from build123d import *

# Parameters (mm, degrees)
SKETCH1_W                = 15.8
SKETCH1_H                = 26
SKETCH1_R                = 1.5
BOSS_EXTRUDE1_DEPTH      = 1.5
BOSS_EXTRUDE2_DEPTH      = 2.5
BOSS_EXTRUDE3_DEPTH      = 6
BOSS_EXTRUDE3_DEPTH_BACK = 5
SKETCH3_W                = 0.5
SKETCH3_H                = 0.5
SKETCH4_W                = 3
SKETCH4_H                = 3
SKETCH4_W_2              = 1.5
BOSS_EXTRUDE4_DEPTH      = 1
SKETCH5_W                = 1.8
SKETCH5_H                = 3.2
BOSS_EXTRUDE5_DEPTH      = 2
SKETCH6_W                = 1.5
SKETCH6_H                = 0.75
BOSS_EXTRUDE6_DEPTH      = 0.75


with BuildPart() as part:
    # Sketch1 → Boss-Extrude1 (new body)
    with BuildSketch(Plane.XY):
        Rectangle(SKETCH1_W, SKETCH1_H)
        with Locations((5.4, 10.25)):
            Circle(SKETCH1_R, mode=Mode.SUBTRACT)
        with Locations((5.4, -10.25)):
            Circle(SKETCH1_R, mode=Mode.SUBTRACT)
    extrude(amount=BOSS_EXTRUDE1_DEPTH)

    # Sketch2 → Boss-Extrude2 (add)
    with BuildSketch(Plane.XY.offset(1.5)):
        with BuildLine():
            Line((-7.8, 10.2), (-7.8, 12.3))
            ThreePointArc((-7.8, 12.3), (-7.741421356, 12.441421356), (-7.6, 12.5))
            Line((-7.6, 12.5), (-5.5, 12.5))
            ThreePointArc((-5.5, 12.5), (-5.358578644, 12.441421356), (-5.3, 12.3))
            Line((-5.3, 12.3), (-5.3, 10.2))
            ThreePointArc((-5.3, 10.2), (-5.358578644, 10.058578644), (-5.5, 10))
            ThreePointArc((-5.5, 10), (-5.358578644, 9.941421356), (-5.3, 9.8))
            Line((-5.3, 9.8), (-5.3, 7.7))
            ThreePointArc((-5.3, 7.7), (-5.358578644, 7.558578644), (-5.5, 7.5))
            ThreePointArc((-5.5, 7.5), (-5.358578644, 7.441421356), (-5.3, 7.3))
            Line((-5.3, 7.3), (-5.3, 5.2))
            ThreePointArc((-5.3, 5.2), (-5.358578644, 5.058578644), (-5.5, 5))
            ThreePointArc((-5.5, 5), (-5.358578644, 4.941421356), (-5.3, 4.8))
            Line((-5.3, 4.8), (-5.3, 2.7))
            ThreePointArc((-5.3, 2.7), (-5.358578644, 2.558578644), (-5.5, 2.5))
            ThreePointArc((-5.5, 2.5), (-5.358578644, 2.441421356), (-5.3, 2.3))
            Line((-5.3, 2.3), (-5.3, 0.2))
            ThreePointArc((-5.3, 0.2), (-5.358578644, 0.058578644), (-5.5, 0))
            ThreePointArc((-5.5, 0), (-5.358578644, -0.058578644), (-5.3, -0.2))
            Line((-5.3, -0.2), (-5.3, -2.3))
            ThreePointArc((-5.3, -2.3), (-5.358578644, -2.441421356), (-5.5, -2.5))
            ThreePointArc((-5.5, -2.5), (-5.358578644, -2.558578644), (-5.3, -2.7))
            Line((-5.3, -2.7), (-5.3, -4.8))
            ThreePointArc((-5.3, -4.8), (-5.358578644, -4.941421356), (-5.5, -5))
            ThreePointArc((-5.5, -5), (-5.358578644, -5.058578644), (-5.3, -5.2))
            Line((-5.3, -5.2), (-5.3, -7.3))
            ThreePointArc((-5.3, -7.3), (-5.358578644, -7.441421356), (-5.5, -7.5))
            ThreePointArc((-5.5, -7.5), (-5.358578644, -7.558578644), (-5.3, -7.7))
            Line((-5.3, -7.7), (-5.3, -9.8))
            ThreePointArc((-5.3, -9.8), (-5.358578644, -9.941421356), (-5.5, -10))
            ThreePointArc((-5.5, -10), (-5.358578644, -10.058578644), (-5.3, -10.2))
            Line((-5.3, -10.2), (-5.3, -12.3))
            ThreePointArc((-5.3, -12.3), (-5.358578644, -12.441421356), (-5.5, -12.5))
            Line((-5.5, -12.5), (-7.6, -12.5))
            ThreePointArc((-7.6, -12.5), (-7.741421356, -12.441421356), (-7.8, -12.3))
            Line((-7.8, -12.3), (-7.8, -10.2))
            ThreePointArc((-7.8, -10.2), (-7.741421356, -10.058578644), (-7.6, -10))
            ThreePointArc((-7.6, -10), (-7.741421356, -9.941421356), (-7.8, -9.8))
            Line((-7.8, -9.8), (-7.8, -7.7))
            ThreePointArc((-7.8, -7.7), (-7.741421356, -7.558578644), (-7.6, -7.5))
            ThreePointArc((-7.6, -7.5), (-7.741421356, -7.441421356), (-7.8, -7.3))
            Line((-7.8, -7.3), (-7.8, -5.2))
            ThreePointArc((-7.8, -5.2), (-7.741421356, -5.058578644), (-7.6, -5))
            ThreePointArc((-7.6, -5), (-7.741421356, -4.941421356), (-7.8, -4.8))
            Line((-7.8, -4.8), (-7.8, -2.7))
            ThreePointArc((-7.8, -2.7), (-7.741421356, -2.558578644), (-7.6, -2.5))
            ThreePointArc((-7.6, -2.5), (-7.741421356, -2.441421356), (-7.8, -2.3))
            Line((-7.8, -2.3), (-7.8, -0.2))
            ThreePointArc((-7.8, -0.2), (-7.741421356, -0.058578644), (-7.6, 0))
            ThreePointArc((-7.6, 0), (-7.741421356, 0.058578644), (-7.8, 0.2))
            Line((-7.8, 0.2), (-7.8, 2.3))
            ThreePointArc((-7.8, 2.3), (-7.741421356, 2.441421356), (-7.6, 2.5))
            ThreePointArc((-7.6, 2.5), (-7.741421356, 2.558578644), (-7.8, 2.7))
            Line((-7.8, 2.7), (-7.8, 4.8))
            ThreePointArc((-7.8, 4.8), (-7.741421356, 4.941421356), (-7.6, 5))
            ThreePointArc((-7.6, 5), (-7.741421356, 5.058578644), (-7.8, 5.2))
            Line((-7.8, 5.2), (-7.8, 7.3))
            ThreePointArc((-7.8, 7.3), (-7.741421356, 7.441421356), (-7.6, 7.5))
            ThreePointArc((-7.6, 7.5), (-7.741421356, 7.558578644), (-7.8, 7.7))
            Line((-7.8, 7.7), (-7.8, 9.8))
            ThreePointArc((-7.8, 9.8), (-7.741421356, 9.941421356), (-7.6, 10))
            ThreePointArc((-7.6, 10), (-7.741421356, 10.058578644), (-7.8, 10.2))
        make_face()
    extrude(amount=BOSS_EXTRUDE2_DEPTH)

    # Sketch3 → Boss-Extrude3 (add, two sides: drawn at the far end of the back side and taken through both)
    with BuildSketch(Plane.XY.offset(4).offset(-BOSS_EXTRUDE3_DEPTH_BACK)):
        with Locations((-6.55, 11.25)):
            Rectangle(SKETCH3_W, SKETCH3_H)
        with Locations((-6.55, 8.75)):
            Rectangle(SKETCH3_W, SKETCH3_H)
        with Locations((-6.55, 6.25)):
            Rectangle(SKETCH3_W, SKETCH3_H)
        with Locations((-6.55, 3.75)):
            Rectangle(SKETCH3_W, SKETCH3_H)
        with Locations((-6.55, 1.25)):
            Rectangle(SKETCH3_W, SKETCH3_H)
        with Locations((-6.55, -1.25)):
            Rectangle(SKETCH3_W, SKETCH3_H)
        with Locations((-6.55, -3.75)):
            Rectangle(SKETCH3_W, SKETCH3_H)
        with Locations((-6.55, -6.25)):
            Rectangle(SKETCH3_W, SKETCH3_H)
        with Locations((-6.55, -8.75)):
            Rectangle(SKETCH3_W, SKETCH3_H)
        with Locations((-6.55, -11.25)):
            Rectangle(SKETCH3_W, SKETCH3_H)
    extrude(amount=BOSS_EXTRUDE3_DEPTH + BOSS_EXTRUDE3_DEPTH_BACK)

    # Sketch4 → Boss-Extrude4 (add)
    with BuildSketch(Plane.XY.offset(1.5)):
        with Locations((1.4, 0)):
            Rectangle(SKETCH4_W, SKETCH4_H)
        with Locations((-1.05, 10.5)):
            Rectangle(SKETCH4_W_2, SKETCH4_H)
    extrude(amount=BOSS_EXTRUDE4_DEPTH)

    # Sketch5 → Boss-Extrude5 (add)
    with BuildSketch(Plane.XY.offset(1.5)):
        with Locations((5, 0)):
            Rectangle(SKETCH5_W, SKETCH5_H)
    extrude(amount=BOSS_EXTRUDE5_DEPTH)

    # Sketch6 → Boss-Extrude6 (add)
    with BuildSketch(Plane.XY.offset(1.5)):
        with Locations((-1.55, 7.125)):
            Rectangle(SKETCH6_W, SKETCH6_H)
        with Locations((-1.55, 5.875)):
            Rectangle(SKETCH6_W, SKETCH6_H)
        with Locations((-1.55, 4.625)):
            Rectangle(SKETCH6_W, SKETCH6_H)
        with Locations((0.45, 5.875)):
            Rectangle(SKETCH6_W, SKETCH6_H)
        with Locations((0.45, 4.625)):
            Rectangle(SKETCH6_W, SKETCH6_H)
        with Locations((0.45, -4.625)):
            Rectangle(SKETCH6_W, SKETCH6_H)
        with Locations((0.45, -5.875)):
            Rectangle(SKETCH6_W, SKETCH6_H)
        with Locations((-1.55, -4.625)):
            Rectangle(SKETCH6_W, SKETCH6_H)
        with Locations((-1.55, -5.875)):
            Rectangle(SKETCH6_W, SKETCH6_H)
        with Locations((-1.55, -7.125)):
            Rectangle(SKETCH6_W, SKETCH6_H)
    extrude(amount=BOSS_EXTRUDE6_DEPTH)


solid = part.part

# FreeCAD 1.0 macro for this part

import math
import FreeCAD as App
import Part
import Sketcher

V = App.Vector


def add_polygon(sketch, points):
    """Adds a closed chain of lines whose ends are joined by coincident constraints."""
    first, n = sketch.GeometryCount, len(points)
    for a, b in zip(points, points[1:] + points[:1]):
        sketch.addGeometry(Part.LineSegment(App.Vector(*a, 0), App.Vector(*b, 0)), False)
    for i in range(n):
        sketch.addConstraint(Sketcher.Constraint("Coincident", first + i, 2, first + (i + 1) % n, 1))

doc = App.newDocument("Part")
body = doc.addObject("PartDesign::Body", "Body")

sketch1 = body.newObject("Sketcher::SketchObject", "Sketch")
sketch1.AttachmentSupport = (doc.getObject("XY_Plane"), [""])
sketch1.MapMode = "FlatFace"
add_polygon(sketch1, [(-7.9, 13), (-7.9, -13), (7.9, -13), (7.9, 13)])
sketch1.addGeometry(Part.Circle(V(5.4, -10.2, 0), V(0, 0, 1), 1.5), False)
sketch1.addGeometry(Part.Circle(V(5.4, 10.2, 0), V(0, 0, 1), 1.5), False)
sketch1.addConstraint(Sketcher.Constraint("Vertical", 0))
sketch1.addConstraint(Sketcher.Constraint("Horizontal", 1))
sketch1.addConstraint(Sketcher.Constraint("Vertical", 2))
sketch1.addConstraint(Sketcher.Constraint("Horizontal", 3))
sketch1.addConstraint(Sketcher.Constraint("Equal", 4, 5))
sketch1.addConstraint(Sketcher.Constraint("Symmetric", 0, 2, 2, 2, -1, 1))
sketch1.addConstraint(Sketcher.Constraint("Symmetric", 4, 3, 5, 3, -1))
sketch1.addConstraint(Sketcher.Constraint("Diameter", 4, 3.0))
sketch1.addConstraint(Sketcher.Constraint("DistanceY", 0, 2, 0, 1, 26.0))
sketch1.addConstraint(Sketcher.Constraint("DistanceX", 1, 1, 1, 2, 15.8))
sketch1.addConstraint(Sketcher.Constraint("DistanceX", -1, 1, 4, 3, 5.4))
sketch1.addConstraint(Sketcher.Constraint("DistanceY", 4, 3, 5, 3, 20.5))
pad1 = body.newObject("PartDesign::Pad", "Pad")
pad1.Profile = sketch1
pad1.Length = 1.5

sketch2 = body.newObject("Sketcher::SketchObject", "Sketch001")
sketch2.AttachmentSupport = (doc.getObject("XY_Plane"), [""])
sketch2.MapMode = "FlatFace"
sketch2.AttachmentOffset = App.Placement(V(0, 0, 1.5), App.Rotation())
sketch2.addGeometry(Part.LineSegment(V(-7.8, 12.3, 0), V(-7.8, 10.2, 0)), False)
sketch2.addGeometry(Part.ArcOfCircle(Part.Circle(V(-7.6, 10.2, 0), V(0, 0, 1), 0.2), math.radians(-180), math.radians(-90)), False)
sketch2.addGeometry(Part.ArcOfCircle(Part.Circle(V(-7.6, 9.8, 0), V(0, 0, 1), 0.2), math.radians(90), math.radians(180)), False)
sketch2.addGeometry(Part.LineSegment(V(-7.8, 9.8, 0), V(-7.8, 7.7, 0)), False)
sketch2.addGeometry(Part.ArcOfCircle(Part.Circle(V(-7.6, 7.7, 0), V(0, 0, 1), 0.2), math.radians(-180), math.radians(-90)), False)
sketch2.addGeometry(Part.ArcOfCircle(Part.Circle(V(-7.6, 7.3, 0), V(0, 0, 1), 0.2), math.radians(90), math.radians(180)), False)
sketch2.addGeometry(Part.LineSegment(V(-7.8, 7.3, 0), V(-7.8, 5.2, 0)), False)
sketch2.addGeometry(Part.ArcOfCircle(Part.Circle(V(-7.6, 5.2, 0), V(0, 0, 1), 0.2), math.radians(-180), math.radians(-90)), False)
sketch2.addGeometry(Part.ArcOfCircle(Part.Circle(V(-7.6, 4.8, 0), V(0, 0, 1), 0.2), math.radians(90), math.radians(180)), False)
sketch2.addGeometry(Part.LineSegment(V(-7.8, 4.8, 0), V(-7.8, 2.7, 0)), False)
sketch2.addGeometry(Part.ArcOfCircle(Part.Circle(V(-7.6, 2.7, 0), V(0, 0, 1), 0.2), math.radians(-180), math.radians(-90)), False)
sketch2.addGeometry(Part.ArcOfCircle(Part.Circle(V(-7.6, 2.3, 0), V(0, 0, 1), 0.2), math.radians(90), math.radians(180)), False)
sketch2.addGeometry(Part.LineSegment(V(-7.8, 2.3, 0), V(-7.8, 0.2, 0)), False)
sketch2.addGeometry(Part.ArcOfCircle(Part.Circle(V(-7.6, 0.2, 0), V(0, 0, 1), 0.2), math.radians(-180), math.radians(-90)), False)
sketch2.addGeometry(Part.ArcOfCircle(Part.Circle(V(-7.6, -0.2, 0), V(0, 0, 1), 0.2), math.radians(90), math.radians(180)), False)
sketch2.addGeometry(Part.LineSegment(V(-7.8, -0.2, 0), V(-7.8, -2.3, 0)), False)
sketch2.addGeometry(Part.ArcOfCircle(Part.Circle(V(-7.6, -2.3, 0), V(0, 0, 1), 0.2), math.radians(-180), math.radians(-90)), False)
sketch2.addGeometry(Part.ArcOfCircle(Part.Circle(V(-7.6, -2.7, 0), V(0, 0, 1), 0.2), math.radians(90), math.radians(180)), False)
sketch2.addGeometry(Part.LineSegment(V(-7.8, -2.7, 0), V(-7.8, -4.8, 0)), False)
sketch2.addGeometry(Part.ArcOfCircle(Part.Circle(V(-7.6, -4.8, 0), V(0, 0, 1), 0.2), math.radians(-180), math.radians(-90)), False)
sketch2.addGeometry(Part.ArcOfCircle(Part.Circle(V(-7.6, -5.2, 0), V(0, 0, 1), 0.2), math.radians(90), math.radians(180)), False)
sketch2.addGeometry(Part.LineSegment(V(-7.8, -5.2, 0), V(-7.8, -7.3, 0)), False)
sketch2.addGeometry(Part.ArcOfCircle(Part.Circle(V(-7.6, -7.3, 0), V(0, 0, 1), 0.2), math.radians(-180), math.radians(-90)), False)
sketch2.addGeometry(Part.ArcOfCircle(Part.Circle(V(-7.6, -7.7, 0), V(0, 0, 1), 0.2), math.radians(90), math.radians(180)), False)
sketch2.addGeometry(Part.LineSegment(V(-7.8, -7.7, 0), V(-7.8, -9.8, 0)), False)
sketch2.addGeometry(Part.ArcOfCircle(Part.Circle(V(-7.6, -9.8, 0), V(0, 0, 1), 0.2), math.radians(-180), math.radians(-90)), False)
sketch2.addGeometry(Part.ArcOfCircle(Part.Circle(V(-7.6, -10.2, 0), V(0, 0, 1), 0.2), math.radians(90), math.radians(180)), False)
sketch2.addGeometry(Part.LineSegment(V(-7.8, -10.2, 0), V(-7.8, -12.3, 0)), False)
sketch2.addGeometry(Part.ArcOfCircle(Part.Circle(V(-7.6, -12.3, 0), V(0, 0, 1), 0.2), math.radians(-180), math.radians(-90)), False)
sketch2.addGeometry(Part.LineSegment(V(-7.6, -12.5, 0), V(-5.5, -12.5, 0)), False)
sketch2.addGeometry(Part.ArcOfCircle(Part.Circle(V(-5.5, -12.3, 0), V(0, 0, 1), 0.2), math.radians(-90), math.radians(0)), False)
sketch2.addGeometry(Part.LineSegment(V(-5.3, -12.3, 0), V(-5.3, -10.2, 0)), False)
sketch2.addGeometry(Part.ArcOfCircle(Part.Circle(V(-5.5, -10.2, 0), V(0, 0, 1), 0.2), math.radians(0), math.radians(90)), False)
sketch2.addGeometry(Part.ArcOfCircle(Part.Circle(V(-5.5, -9.8, 0), V(0, 0, 1), 0.2), math.radians(-90), math.radians(0)), False)
sketch2.addGeometry(Part.LineSegment(V(-5.3, -9.8, 0), V(-5.3, -7.7, 0)), False)
sketch2.addGeometry(Part.ArcOfCircle(Part.Circle(V(-5.5, -7.7, 0), V(0, 0, 1), 0.2), math.radians(0), math.radians(90)), False)
sketch2.addGeometry(Part.ArcOfCircle(Part.Circle(V(-5.5, -7.3, 0), V(0, 0, 1), 0.2), math.radians(-90), math.radians(0)), False)
sketch2.addGeometry(Part.LineSegment(V(-5.3, -7.3, 0), V(-5.3, -5.2, 0)), False)
sketch2.addGeometry(Part.ArcOfCircle(Part.Circle(V(-5.5, -5.2, 0), V(0, 0, 1), 0.2), math.radians(0), math.radians(90)), False)
sketch2.addGeometry(Part.ArcOfCircle(Part.Circle(V(-5.5, -4.8, 0), V(0, 0, 1), 0.2), math.radians(-90), math.radians(0)), False)
sketch2.addGeometry(Part.LineSegment(V(-5.3, -4.8, 0), V(-5.3, -2.7, 0)), False)
sketch2.addGeometry(Part.ArcOfCircle(Part.Circle(V(-5.5, -2.7, 0), V(0, 0, 1), 0.2), math.radians(0), math.radians(90)), False)
sketch2.addGeometry(Part.ArcOfCircle(Part.Circle(V(-5.5, -2.3, 0), V(0, 0, 1), 0.2), math.radians(-90), math.radians(0)), False)
sketch2.addGeometry(Part.LineSegment(V(-5.3, -2.3, 0), V(-5.3, -0.2, 0)), False)
sketch2.addGeometry(Part.ArcOfCircle(Part.Circle(V(-5.5, -0.2, 0), V(0, 0, 1), 0.2), math.radians(0), math.radians(90)), False)
sketch2.addGeometry(Part.ArcOfCircle(Part.Circle(V(-5.5, 0.2, 0), V(0, 0, 1), 0.2), math.radians(-90), math.radians(0)), False)
sketch2.addGeometry(Part.LineSegment(V(-5.3, 0.2, 0), V(-5.3, 2.3, 0)), False)
sketch2.addGeometry(Part.ArcOfCircle(Part.Circle(V(-5.5, 2.3, 0), V(0, 0, 1), 0.2), math.radians(0), math.radians(90)), False)
sketch2.addGeometry(Part.ArcOfCircle(Part.Circle(V(-5.5, 2.7, 0), V(0, 0, 1), 0.2), math.radians(-90), math.radians(0)), False)
sketch2.addGeometry(Part.LineSegment(V(-5.3, 2.7, 0), V(-5.3, 4.8, 0)), False)
sketch2.addGeometry(Part.ArcOfCircle(Part.Circle(V(-5.5, 4.8, 0), V(0, 0, 1), 0.2), math.radians(0), math.radians(90)), False)
sketch2.addGeometry(Part.ArcOfCircle(Part.Circle(V(-5.5, 5.2, 0), V(0, 0, 1), 0.2), math.radians(-90), math.radians(0)), False)
sketch2.addGeometry(Part.LineSegment(V(-5.3, 5.2, 0), V(-5.3, 7.3, 0)), False)
sketch2.addGeometry(Part.ArcOfCircle(Part.Circle(V(-5.5, 7.3, 0), V(0, 0, 1), 0.2), math.radians(0), math.radians(90)), False)
sketch2.addGeometry(Part.ArcOfCircle(Part.Circle(V(-5.5, 7.7, 0), V(0, 0, 1), 0.2), math.radians(-90), math.radians(0)), False)
sketch2.addGeometry(Part.LineSegment(V(-5.3, 7.7, 0), V(-5.3, 9.8, 0)), False)
sketch2.addGeometry(Part.ArcOfCircle(Part.Circle(V(-5.5, 9.8, 0), V(0, 0, 1), 0.2), math.radians(0), math.radians(90)), False)
sketch2.addGeometry(Part.ArcOfCircle(Part.Circle(V(-5.5, 10.2, 0), V(0, 0, 1), 0.2), math.radians(-90), math.radians(0)), False)
sketch2.addGeometry(Part.LineSegment(V(-5.3, 10.2, 0), V(-5.3, 12.3, 0)), False)
sketch2.addGeometry(Part.ArcOfCircle(Part.Circle(V(-5.5, 12.3, 0), V(0, 0, 1), 0.2), math.radians(0), math.radians(90)), False)
sketch2.addGeometry(Part.LineSegment(V(-5.5, 12.5, 0), V(-7.6, 12.5, 0)), False)
sketch2.addGeometry(Part.ArcOfCircle(Part.Circle(V(-7.6, 12.3, 0), V(0, 0, 1), 0.2), math.radians(90), math.radians(180)), False)
sketch2.addConstraint(Sketcher.Constraint("Tangent", 0, 2, 1, 1))
sketch2.addConstraint(Sketcher.Constraint("Tangent", 1, 2, 2, 1))
sketch2.addConstraint(Sketcher.Constraint("Tangent", 2, 2, 3, 1))
sketch2.addConstraint(Sketcher.Constraint("Tangent", 3, 2, 4, 1))
sketch2.addConstraint(Sketcher.Constraint("Tangent", 4, 2, 5, 1))
sketch2.addConstraint(Sketcher.Constraint("Tangent", 5, 2, 6, 1))
sketch2.addConstraint(Sketcher.Constraint("Tangent", 6, 2, 7, 1))
sketch2.addConstraint(Sketcher.Constraint("Tangent", 7, 2, 8, 1))
sketch2.addConstraint(Sketcher.Constraint("Tangent", 8, 2, 9, 1))
sketch2.addConstraint(Sketcher.Constraint("Tangent", 9, 2, 10, 1))
sketch2.addConstraint(Sketcher.Constraint("Tangent", 10, 2, 11, 1))
sketch2.addConstraint(Sketcher.Constraint("Tangent", 11, 2, 12, 1))
sketch2.addConstraint(Sketcher.Constraint("Tangent", 12, 2, 13, 1))
sketch2.addConstraint(Sketcher.Constraint("Tangent", 13, 2, 14, 1))
sketch2.addConstraint(Sketcher.Constraint("Tangent", 14, 2, 15, 1))
sketch2.addConstraint(Sketcher.Constraint("Tangent", 15, 2, 16, 1))
sketch2.addConstraint(Sketcher.Constraint("Tangent", 16, 2, 17, 1))
sketch2.addConstraint(Sketcher.Constraint("Tangent", 17, 2, 18, 1))
sketch2.addConstraint(Sketcher.Constraint("Tangent", 18, 2, 19, 1))
sketch2.addConstraint(Sketcher.Constraint("Tangent", 19, 2, 20, 1))
sketch2.addConstraint(Sketcher.Constraint("Tangent", 20, 2, 21, 1))
sketch2.addConstraint(Sketcher.Constraint("Tangent", 21, 2, 22, 1))
sketch2.addConstraint(Sketcher.Constraint("Tangent", 22, 2, 23, 1))
sketch2.addConstraint(Sketcher.Constraint("Tangent", 23, 2, 24, 1))
sketch2.addConstraint(Sketcher.Constraint("Tangent", 24, 2, 25, 1))
sketch2.addConstraint(Sketcher.Constraint("Tangent", 25, 2, 26, 1))
sketch2.addConstraint(Sketcher.Constraint("Tangent", 26, 2, 27, 1))
sketch2.addConstraint(Sketcher.Constraint("Tangent", 27, 2, 28, 1))
sketch2.addConstraint(Sketcher.Constraint("Tangent", 28, 2, 29, 1))
sketch2.addConstraint(Sketcher.Constraint("Tangent", 29, 2, 30, 1))
sketch2.addConstraint(Sketcher.Constraint("Tangent", 30, 2, 31, 1))
sketch2.addConstraint(Sketcher.Constraint("Tangent", 31, 2, 32, 1))
sketch2.addConstraint(Sketcher.Constraint("Tangent", 32, 2, 33, 1))
sketch2.addConstraint(Sketcher.Constraint("Tangent", 33, 2, 34, 1))
sketch2.addConstraint(Sketcher.Constraint("Tangent", 34, 2, 35, 1))
sketch2.addConstraint(Sketcher.Constraint("Tangent", 35, 2, 36, 1))
sketch2.addConstraint(Sketcher.Constraint("Tangent", 36, 2, 37, 1))
sketch2.addConstraint(Sketcher.Constraint("Tangent", 37, 2, 38, 1))
sketch2.addConstraint(Sketcher.Constraint("Tangent", 38, 2, 39, 1))
sketch2.addConstraint(Sketcher.Constraint("Tangent", 39, 2, 40, 1))
sketch2.addConstraint(Sketcher.Constraint("Tangent", 40, 2, 41, 1))
sketch2.addConstraint(Sketcher.Constraint("Tangent", 41, 2, 42, 1))
sketch2.addConstraint(Sketcher.Constraint("Tangent", 42, 2, 43, 1))
sketch2.addConstraint(Sketcher.Constraint("Tangent", 43, 2, 44, 1))
sketch2.addConstraint(Sketcher.Constraint("Tangent", 44, 2, 45, 1))
sketch2.addConstraint(Sketcher.Constraint("Tangent", 45, 2, 46, 1))
sketch2.addConstraint(Sketcher.Constraint("Tangent", 46, 2, 47, 1))
sketch2.addConstraint(Sketcher.Constraint("Tangent", 47, 2, 48, 1))
sketch2.addConstraint(Sketcher.Constraint("Tangent", 48, 2, 49, 1))
sketch2.addConstraint(Sketcher.Constraint("Tangent", 49, 2, 50, 1))
sketch2.addConstraint(Sketcher.Constraint("Tangent", 50, 2, 51, 1))
sketch2.addConstraint(Sketcher.Constraint("Tangent", 51, 2, 52, 1))
sketch2.addConstraint(Sketcher.Constraint("Tangent", 52, 2, 53, 1))
sketch2.addConstraint(Sketcher.Constraint("Tangent", 53, 2, 54, 1))
sketch2.addConstraint(Sketcher.Constraint("Tangent", 54, 2, 55, 1))
sketch2.addConstraint(Sketcher.Constraint("Tangent", 55, 2, 56, 1))
sketch2.addConstraint(Sketcher.Constraint("Tangent", 56, 2, 57, 1))
sketch2.addConstraint(Sketcher.Constraint("Tangent", 57, 2, 58, 1))
sketch2.addConstraint(Sketcher.Constraint("Tangent", 58, 2, 59, 1))
sketch2.addConstraint(Sketcher.Constraint("Tangent", 59, 2, 60, 1))
sketch2.addConstraint(Sketcher.Constraint("Tangent", 60, 2, 61, 1))
sketch2.addConstraint(Sketcher.Constraint("Tangent", 61, 2, 0, 1))
sketch2.addConstraint(Sketcher.Constraint("Vertical", 0))
sketch2.addConstraint(Sketcher.Constraint("Vertical", 3))
sketch2.addConstraint(Sketcher.Constraint("Vertical", 6))
sketch2.addConstraint(Sketcher.Constraint("Vertical", 9))
sketch2.addConstraint(Sketcher.Constraint("Vertical", 12))
sketch2.addConstraint(Sketcher.Constraint("Vertical", 15))
sketch2.addConstraint(Sketcher.Constraint("Vertical", 18))
sketch2.addConstraint(Sketcher.Constraint("Vertical", 21))
sketch2.addConstraint(Sketcher.Constraint("Vertical", 24))
sketch2.addConstraint(Sketcher.Constraint("Vertical", 27))
sketch2.addConstraint(Sketcher.Constraint("Horizontal", 29))
sketch2.addConstraint(Sketcher.Constraint("Vertical", 31))
sketch2.addConstraint(Sketcher.Constraint("Vertical", 34))
sketch2.addConstraint(Sketcher.Constraint("Vertical", 37))
sketch2.addConstraint(Sketcher.Constraint("Vertical", 40))
sketch2.addConstraint(Sketcher.Constraint("Vertical", 43))
sketch2.addConstraint(Sketcher.Constraint("Vertical", 46))
sketch2.addConstraint(Sketcher.Constraint("Vertical", 49))
sketch2.addConstraint(Sketcher.Constraint("Vertical", 52))
sketch2.addConstraint(Sketcher.Constraint("Vertical", 55))
sketch2.addConstraint(Sketcher.Constraint("Vertical", 58))
sketch2.addConstraint(Sketcher.Constraint("Horizontal", 60))
sketch2.addConstraint(Sketcher.Constraint("Equal", 1, 2))
sketch2.addConstraint(Sketcher.Constraint("Equal", 2, 4))
sketch2.addConstraint(Sketcher.Constraint("Equal", 4, 5))
sketch2.addConstraint(Sketcher.Constraint("Equal", 5, 7))
sketch2.addConstraint(Sketcher.Constraint("Equal", 7, 8))
sketch2.addConstraint(Sketcher.Constraint("Equal", 8, 10))
sketch2.addConstraint(Sketcher.Constraint("Equal", 10, 11))
sketch2.addConstraint(Sketcher.Constraint("Equal", 11, 13))
sketch2.addConstraint(Sketcher.Constraint("Equal", 13, 14))
sketch2.addConstraint(Sketcher.Constraint("Equal", 14, 16))
sketch2.addConstraint(Sketcher.Constraint("Equal", 16, 17))
sketch2.addConstraint(Sketcher.Constraint("Equal", 17, 19))
sketch2.addConstraint(Sketcher.Constraint("Equal", 19, 20))
sketch2.addConstraint(Sketcher.Constraint("Equal", 20, 22))
sketch2.addConstraint(Sketcher.Constraint("Equal", 22, 23))
sketch2.addConstraint(Sketcher.Constraint("Equal", 23, 25))
sketch2.addConstraint(Sketcher.Constraint("Equal", 25, 26))
sketch2.addConstraint(Sketcher.Constraint("Equal", 26, 28))
sketch2.addConstraint(Sketcher.Constraint("Equal", 28, 30))
sketch2.addConstraint(Sketcher.Constraint("Equal", 30, 32))
sketch2.addConstraint(Sketcher.Constraint("Equal", 32, 33))
sketch2.addConstraint(Sketcher.Constraint("Equal", 33, 35))
sketch2.addConstraint(Sketcher.Constraint("Equal", 35, 36))
sketch2.addConstraint(Sketcher.Constraint("Equal", 36, 38))
sketch2.addConstraint(Sketcher.Constraint("Equal", 38, 39))
sketch2.addConstraint(Sketcher.Constraint("Equal", 39, 41))
sketch2.addConstraint(Sketcher.Constraint("Equal", 41, 42))
sketch2.addConstraint(Sketcher.Constraint("Equal", 42, 44))
sketch2.addConstraint(Sketcher.Constraint("Equal", 44, 45))
sketch2.addConstraint(Sketcher.Constraint("Equal", 45, 47))
sketch2.addConstraint(Sketcher.Constraint("Equal", 47, 48))
sketch2.addConstraint(Sketcher.Constraint("Equal", 48, 50))
sketch2.addConstraint(Sketcher.Constraint("Equal", 50, 51))
sketch2.addConstraint(Sketcher.Constraint("Equal", 51, 53))
sketch2.addConstraint(Sketcher.Constraint("Equal", 53, 54))
sketch2.addConstraint(Sketcher.Constraint("Equal", 54, 56))
sketch2.addConstraint(Sketcher.Constraint("Equal", 56, 57))
sketch2.addConstraint(Sketcher.Constraint("Equal", 57, 59))
sketch2.addConstraint(Sketcher.Constraint("Equal", 59, 61))
sketch2.addConstraint(Sketcher.Constraint("Symmetric", 13, 3, 14, 3, -1))
sketch2.addConstraint(Sketcher.Constraint("Symmetric", 10, 3, 17, 3, -1))
sketch2.addConstraint(Sketcher.Constraint("Symmetric", 7, 3, 20, 3, -1))
sketch2.addConstraint(Sketcher.Constraint("Symmetric", 4, 3, 23, 3, -1))
sketch2.addConstraint(Sketcher.Constraint("Symmetric", 1, 3, 26, 3, -1))
sketch2.addConstraint(Sketcher.Constraint("Symmetric", 44, 3, 45, 3, -1))
sketch2.addConstraint(Sketcher.Constraint("Symmetric", 41, 3, 48, 3, -1))
sketch2.addConstraint(Sketcher.Constraint("Symmetric", 38, 3, 51, 3, -1))
sketch2.addConstraint(Sketcher.Constraint("Symmetric", 35, 3, 54, 3, -1))
sketch2.addConstraint(Sketcher.Constraint("Symmetric", 32, 3, 57, 3, -1))
sketch2.addConstraint(Sketcher.Constraint("Horizontal", 26, 3, 32, 3))
sketch2.addConstraint(Sketcher.Constraint("Horizontal", 23, 3, 35, 3))
sketch2.addConstraint(Sketcher.Constraint("Horizontal", 20, 3, 38, 3))
sketch2.addConstraint(Sketcher.Constraint("Horizontal", 17, 3, 41, 3))
sketch2.addConstraint(Sketcher.Constraint("Vertical", 1, 3, 2, 3))
sketch2.addConstraint(Sketcher.Constraint("Vertical", 4, 3, 5, 3))
sketch2.addConstraint(Sketcher.Constraint("Vertical", 7, 3, 8, 3))
sketch2.addConstraint(Sketcher.Constraint("Vertical", 10, 3, 11, 3))
sketch2.addConstraint(Sketcher.Constraint("Vertical", 32, 3, 33, 3))
sketch2.addConstraint(Sketcher.Constraint("Vertical", 35, 3, 36, 3))
sketch2.addConstraint(Sketcher.Constraint("Vertical", 38, 3, 39, 3))
sketch2.addConstraint(Sketcher.Constraint("Vertical", 41, 3, 42, 3))
sketch2.addConstraint(Sketcher.Constraint("Equal", 60, 0))
sketch2.addConstraint(Sketcher.Constraint("Equal", 0, 3))
sketch2.addConstraint(Sketcher.Constraint("Equal", 3, 6))
sketch2.addConstraint(Sketcher.Constraint("Equal", 6, 9))
sketch2.addConstraint(Sketcher.Constraint("Equal", 9, 12))
sketch2.addConstraint(Sketcher.Constraint("Equal", 24, 27))
sketch2.addConstraint(Sketcher.Constraint("Radius", 1, 0.2))
sketch2.addConstraint(Sketcher.Constraint("DistanceX", 29, 1, 29, 2, 2.1))
sketch2.addConstraint(Sketcher.Constraint("DistanceX", 1, 3, -1, 1, 7.6))
pad2 = body.newObject("PartDesign::Pad", "Pad001")
pad2.Profile = sketch2
pad2.Length = 2.5

sketch3 = body.newObject("Sketcher::SketchObject", "Sketch002")
sketch3.AttachmentSupport = (doc.getObject("XY_Plane"), [""])
sketch3.MapMode = "FlatFace"
sketch3.AttachmentOffset = App.Placement(V(0, 0, 4), App.Rotation())
add_polygon(sketch3, [(-6.8, 11.5), (-6.8, 11), (-6.3, 11), (-6.3, 11.5)])
add_polygon(sketch3, [(-6.8, 9), (-6.8, 8.5), (-6.3, 8.5), (-6.3, 9)])
add_polygon(sketch3, [(-6.8, 6.5), (-6.8, 6), (-6.3, 6), (-6.3, 6.5)])
add_polygon(sketch3, [(-6.8, 4), (-6.8, 3.5), (-6.3, 3.5), (-6.3, 4)])
add_polygon(sketch3, [(-6.8, 1.5), (-6.8, 1), (-6.3, 1), (-6.3, 1.5)])
add_polygon(sketch3, [(-6.8, -1), (-6.8, -1.5), (-6.3, -1.5), (-6.3, -1)])
add_polygon(sketch3, [(-6.8, -3.5), (-6.8, -4), (-6.3, -4), (-6.3, -3.5)])
add_polygon(sketch3, [(-6.8, -6), (-6.8, -6.5), (-6.3, -6.5), (-6.3, -6)])
add_polygon(sketch3, [(-6.8, -8.5), (-6.8, -9), (-6.3, -9), (-6.3, -8.5)])
add_polygon(sketch3, [(-6.8, -11), (-6.8, -11.5), (-6.3, -11.5), (-6.3, -11)])
sketch3.addConstraint(Sketcher.Constraint("Vertical", 0))
sketch3.addConstraint(Sketcher.Constraint("Horizontal", 1))
sketch3.addConstraint(Sketcher.Constraint("Vertical", 2))
sketch3.addConstraint(Sketcher.Constraint("Horizontal", 3))
sketch3.addConstraint(Sketcher.Constraint("Vertical", 4))
sketch3.addConstraint(Sketcher.Constraint("Horizontal", 5))
sketch3.addConstraint(Sketcher.Constraint("Vertical", 6))
sketch3.addConstraint(Sketcher.Constraint("Horizontal", 7))
sketch3.addConstraint(Sketcher.Constraint("Vertical", 8))
sketch3.addConstraint(Sketcher.Constraint("Horizontal", 9))
sketch3.addConstraint(Sketcher.Constraint("Vertical", 10))
sketch3.addConstraint(Sketcher.Constraint("Horizontal", 11))
sketch3.addConstraint(Sketcher.Constraint("Vertical", 12))
sketch3.addConstraint(Sketcher.Constraint("Horizontal", 13))
sketch3.addConstraint(Sketcher.Constraint("Vertical", 14))
sketch3.addConstraint(Sketcher.Constraint("Horizontal", 15))
sketch3.addConstraint(Sketcher.Constraint("Vertical", 16))
sketch3.addConstraint(Sketcher.Constraint("Horizontal", 17))
sketch3.addConstraint(Sketcher.Constraint("Vertical", 18))
sketch3.addConstraint(Sketcher.Constraint("Horizontal", 19))
sketch3.addConstraint(Sketcher.Constraint("Vertical", 20))
sketch3.addConstraint(Sketcher.Constraint("Horizontal", 21))
sketch3.addConstraint(Sketcher.Constraint("Vertical", 22))
sketch3.addConstraint(Sketcher.Constraint("Horizontal", 23))
sketch3.addConstraint(Sketcher.Constraint("Vertical", 24))
sketch3.addConstraint(Sketcher.Constraint("Horizontal", 25))
sketch3.addConstraint(Sketcher.Constraint("Vertical", 26))
sketch3.addConstraint(Sketcher.Constraint("Horizontal", 27))
sketch3.addConstraint(Sketcher.Constraint("Vertical", 28))
sketch3.addConstraint(Sketcher.Constraint("Horizontal", 29))
sketch3.addConstraint(Sketcher.Constraint("Vertical", 30))
sketch3.addConstraint(Sketcher.Constraint("Horizontal", 31))
sketch3.addConstraint(Sketcher.Constraint("Vertical", 32))
sketch3.addConstraint(Sketcher.Constraint("Horizontal", 33))
sketch3.addConstraint(Sketcher.Constraint("Vertical", 34))
sketch3.addConstraint(Sketcher.Constraint("Horizontal", 35))
sketch3.addConstraint(Sketcher.Constraint("Vertical", 36))
sketch3.addConstraint(Sketcher.Constraint("Horizontal", 37))
sketch3.addConstraint(Sketcher.Constraint("Vertical", 38))
sketch3.addConstraint(Sketcher.Constraint("Horizontal", 39))
sketch3.addConstraint(Sketcher.Constraint("Symmetric", 19, 2, 20, 2, -1))
sketch3.addConstraint(Sketcher.Constraint("Symmetric", 17, 2, 22, 2, -1))
sketch3.addConstraint(Sketcher.Constraint("Symmetric", 15, 2, 24, 2, -1))
sketch3.addConstraint(Sketcher.Constraint("Symmetric", 13, 2, 26, 2, -1))
sketch3.addConstraint(Sketcher.Constraint("Symmetric", 11, 2, 28, 2, -1))
sketch3.addConstraint(Sketcher.Constraint("Symmetric", 9, 2, 30, 2, -1))
sketch3.addConstraint(Sketcher.Constraint("Symmetric", 7, 2, 32, 2, -1))
sketch3.addConstraint(Sketcher.Constraint("Symmetric", 5, 2, 34, 2, -1))
sketch3.addConstraint(Sketcher.Constraint("Symmetric", 3, 2, 36, 2, -1))
sketch3.addConstraint(Sketcher.Constraint("Symmetric", 1, 2, 38, 2, -1))
sketch3.addConstraint(Sketcher.Constraint("Vertical", 3, 2, 4, 2))
sketch3.addConstraint(Sketcher.Constraint("Vertical", 2, 2, 5, 2))
sketch3.addConstraint(Sketcher.Constraint("Vertical", 7, 2, 8, 2))
sketch3.addConstraint(Sketcher.Constraint("Vertical", 6, 2, 9, 2))
sketch3.addConstraint(Sketcher.Constraint("Vertical", 11, 2, 12, 2))
sketch3.addConstraint(Sketcher.Constraint("Vertical", 10, 2, 13, 2))
sketch3.addConstraint(Sketcher.Constraint("Vertical", 15, 2, 16, 2))
sketch3.addConstraint(Sketcher.Constraint("Vertical", 14, 2, 17, 2))
sketch3.addConstraint(Sketcher.Constraint("Equal", 39, 0))
sketch3.addConstraint(Sketcher.Constraint("Equal", 2, 4))
sketch3.addConstraint(Sketcher.Constraint("Equal", 6, 8))
sketch3.addConstraint(Sketcher.Constraint("Equal", 10, 12))
sketch3.addConstraint(Sketcher.Constraint("Equal", 14, 16))
sketch3.addConstraint(Sketcher.Constraint("DistanceX", 1, 1, 1, 2, 0.5))
sketch3.addConstraint(Sketcher.Constraint("DistanceY", -1, 1, 0, 2, 11.0))
sketch3.addConstraint(Sketcher.Constraint("DistanceY", -1, 1, 6, 2, 9.0))
sketch3.addConstraint(Sketcher.Constraint("DistanceY", -1, 1, 8, 2, 6.0))
sketch3.addConstraint(Sketcher.Constraint("DistanceY", -1, 1, 14, 2, 4.0))
sketch3.addConstraint(Sketcher.Constraint("DistanceY", -1, 1, 16, 2, 1.0))
sketch3.addConstraint(Sketcher.Constraint("DistanceX", 0, 2, -1, 1, 6.8))
pad3 = body.newObject("PartDesign::Pad", "Pad002")
pad3.Profile = sketch3
pad3.Type = "TwoLengths"
pad3.Length = 6
pad3.Length2 = 5

sketch4 = body.newObject("Sketcher::SketchObject", "Sketch003")
sketch4.AttachmentSupport = (doc.getObject("XY_Plane"), [""])
sketch4.MapMode = "FlatFace"
sketch4.AttachmentOffset = App.Placement(V(0, 0, 1.5), App.Rotation())
add_polygon(sketch4, [(-0.1, 1.5), (-0.1, -1.5), (2.9, -1.5), (2.9, 1.5)])
add_polygon(sketch4, [(-1.8, 12), (-1.8, 9), (-0.3, 9), (-0.3, 12)])
sketch4.addConstraint(Sketcher.Constraint("Vertical", 0))
sketch4.addConstraint(Sketcher.Constraint("Horizontal", 1))
sketch4.addConstraint(Sketcher.Constraint("Vertical", 2))
sketch4.addConstraint(Sketcher.Constraint("Horizontal", 3))
sketch4.addConstraint(Sketcher.Constraint("Vertical", 4))
sketch4.addConstraint(Sketcher.Constraint("Horizontal", 5))
sketch4.addConstraint(Sketcher.Constraint("Vertical", 6))
sketch4.addConstraint(Sketcher.Constraint("Horizontal", 7))
sketch4.addConstraint(Sketcher.Constraint("Equal", 3, 0))
sketch4.addConstraint(Sketcher.Constraint("Equal", 2, 4))
sketch4.addConstraint(Sketcher.Constraint("DistanceX", 1, 1, 1, 2, 3.0))
sketch4.addConstraint(Sketcher.Constraint("DistanceX", 5, 1, 5, 2, 1.5))
sketch4.addConstraint(Sketcher.Constraint("DistanceY", -1, 1, 4, 2, 9.0))
sketch4.addConstraint(Sketcher.Constraint("DistanceX", 0, 2, -1, 1, 0.1))
sketch4.addConstraint(Sketcher.Constraint("DistanceY", 0, 2, -1, 1, 1.5))
sketch4.addConstraint(Sketcher.Constraint("DistanceX", 4, 2, -1, 1, 1.8))
pad4 = body.newObject("PartDesign::Pad", "Pad003")
pad4.Profile = sketch4
pad4.Length = 1

sketch5 = body.newObject("Sketcher::SketchObject", "Sketch004")
sketch5.AttachmentSupport = (doc.getObject("XY_Plane"), [""])
sketch5.MapMode = "FlatFace"
sketch5.AttachmentOffset = App.Placement(V(0, 0, 1.5), App.Rotation())
add_polygon(sketch5, [(4.1, 1.6), (4.1, -1.6), (5.9, -1.6), (5.9, 1.6)])
sketch5.addConstraint(Sketcher.Constraint("Vertical", 0))
sketch5.addConstraint(Sketcher.Constraint("Horizontal", 1))
sketch5.addConstraint(Sketcher.Constraint("Vertical", 2))
sketch5.addConstraint(Sketcher.Constraint("Horizontal", 3))
sketch5.addConstraint(Sketcher.Constraint("DistanceX", 1, 1, 1, 2, 1.8))
sketch5.addConstraint(Sketcher.Constraint("DistanceY", 0, 2, 0, 1, 3.2))
sketch5.addConstraint(Sketcher.Constraint("DistanceX", -1, 1, 0, 2, 4.1))
sketch5.addConstraint(Sketcher.Constraint("DistanceY", 0, 2, -1, 1, 1.6))
pad5 = body.newObject("PartDesign::Pad", "Pad004")
pad5.Profile = sketch5
pad5.Length = 2

sketch6 = body.newObject("Sketcher::SketchObject", "Sketch005")
sketch6.AttachmentSupport = (doc.getObject("XY_Plane"), [""])
sketch6.MapMode = "FlatFace"
sketch6.AttachmentOffset = App.Placement(V(0, 0, 1.5), App.Rotation())
add_polygon(sketch6, [(-2.3, 7.5), (-2.3, 6.8), (-0.8, 6.8), (-0.8, 7.5)])
add_polygon(sketch6, [(-2.3, 6.2), (-2.3, 5.5), (-0.8, 5.5), (-0.8, 6.2)])
add_polygon(sketch6, [(-2.3, 5), (-2.3, 4.2), (-0.8, 4.2), (-0.8, 5)])
add_polygon(sketch6, [(-0.3, 6.2), (-0.3, 5.5), (1.2, 5.5), (1.2, 6.2)])
add_polygon(sketch6, [(-0.3, 5), (-0.3, 4.2), (1.2, 4.2), (1.2, 5)])
add_polygon(sketch6, [(-0.3, -4.2), (-0.3, -5), (1.2, -5), (1.2, -4.2)])
add_polygon(sketch6, [(-0.3, -5.5), (-0.3, -6.2), (1.2, -6.2), (1.2, -5.5)])
add_polygon(sketch6, [(-2.3, -4.2), (-2.3, -5), (-0.8, -5), (-0.8, -4.2)])
add_polygon(sketch6, [(-2.3, -5.5), (-2.3, -6.2), (-0.8, -6.2), (-0.8, -5.5)])
add_polygon(sketch6, [(-2.3, -6.8), (-2.3, -7.5), (-0.8, -7.5), (-0.8, -6.8)])
sketch6.addConstraint(Sketcher.Constraint("Vertical", 0))
sketch6.addConstraint(Sketcher.Constraint("Horizontal", 1))
sketch6.addConstraint(Sketcher.Constraint("Vertical", 2))
sketch6.addConstraint(Sketcher.Constraint("Horizontal", 3))
sketch6.addConstraint(Sketcher.Constraint("Vertical", 4))
sketch6.addConstraint(Sketcher.Constraint("Horizontal", 5))
sketch6.addConstraint(Sketcher.Constraint("Vertical", 6))
sketch6.addConstraint(Sketcher.Constraint("Horizontal", 7))
sketch6.addConstraint(Sketcher.Constraint("Vertical", 8))
sketch6.addConstraint(Sketcher.Constraint("Horizontal", 9))
sketch6.addConstraint(Sketcher.Constraint("Vertical", 10))
sketch6.addConstraint(Sketcher.Constraint("Horizontal", 11))
sketch6.addConstraint(Sketcher.Constraint("Vertical", 12))
sketch6.addConstraint(Sketcher.Constraint("Horizontal", 13))
sketch6.addConstraint(Sketcher.Constraint("Vertical", 14))
sketch6.addConstraint(Sketcher.Constraint("Horizontal", 15))
sketch6.addConstraint(Sketcher.Constraint("Vertical", 16))
sketch6.addConstraint(Sketcher.Constraint("Horizontal", 17))
sketch6.addConstraint(Sketcher.Constraint("Vertical", 18))
sketch6.addConstraint(Sketcher.Constraint("Horizontal", 19))
sketch6.addConstraint(Sketcher.Constraint("Vertical", 20))
sketch6.addConstraint(Sketcher.Constraint("Horizontal", 21))
sketch6.addConstraint(Sketcher.Constraint("Vertical", 22))
sketch6.addConstraint(Sketcher.Constraint("Horizontal", 23))
sketch6.addConstraint(Sketcher.Constraint("Vertical", 24))
sketch6.addConstraint(Sketcher.Constraint("Horizontal", 25))
sketch6.addConstraint(Sketcher.Constraint("Vertical", 26))
sketch6.addConstraint(Sketcher.Constraint("Horizontal", 27))
sketch6.addConstraint(Sketcher.Constraint("Vertical", 28))
sketch6.addConstraint(Sketcher.Constraint("Horizontal", 29))
sketch6.addConstraint(Sketcher.Constraint("Vertical", 30))
sketch6.addConstraint(Sketcher.Constraint("Horizontal", 31))
sketch6.addConstraint(Sketcher.Constraint("Vertical", 32))
sketch6.addConstraint(Sketcher.Constraint("Horizontal", 33))
sketch6.addConstraint(Sketcher.Constraint("Vertical", 34))
sketch6.addConstraint(Sketcher.Constraint("Horizontal", 35))
sketch6.addConstraint(Sketcher.Constraint("Vertical", 36))
sketch6.addConstraint(Sketcher.Constraint("Horizontal", 37))
sketch6.addConstraint(Sketcher.Constraint("Vertical", 38))
sketch6.addConstraint(Sketcher.Constraint("Horizontal", 39))
sketch6.addConstraint(Sketcher.Constraint("Symmetric", 19, 2, 20, 2, -1))
sketch6.addConstraint(Sketcher.Constraint("Symmetric", 17, 2, 22, 2, -1))
sketch6.addConstraint(Sketcher.Constraint("Symmetric", 15, 2, 24, 2, -1))
sketch6.addConstraint(Sketcher.Constraint("Symmetric", 13, 2, 26, 2, -1))
sketch6.addConstraint(Sketcher.Constraint("Symmetric", 11, 2, 28, 2, -1))
sketch6.addConstraint(Sketcher.Constraint("Symmetric", 9, 2, 30, 2, -1))
sketch6.addConstraint(Sketcher.Constraint("Symmetric", 7, 2, 32, 2, -1))
sketch6.addConstraint(Sketcher.Constraint("Symmetric", 5, 2, 34, 2, -1))
sketch6.addConstraint(Sketcher.Constraint("Symmetric", 3, 2, 36, 2, -1))
sketch6.addConstraint(Sketcher.Constraint("Symmetric", 1, 2, 38, 2, -1))
sketch6.addConstraint(Sketcher.Constraint("Horizontal", 5, 2, 12, 2))
sketch6.addConstraint(Sketcher.Constraint("Horizontal", 7, 2, 14, 2))
sketch6.addConstraint(Sketcher.Constraint("Horizontal", 9, 2, 16, 2))
sketch6.addConstraint(Sketcher.Constraint("Horizontal", 11, 2, 18, 2))
sketch6.addConstraint(Sketcher.Constraint("Vertical", 3, 2, 4, 2))
sketch6.addConstraint(Sketcher.Constraint("Vertical", 2, 2, 5, 2))
sketch6.addConstraint(Sketcher.Constraint("Vertical", 7, 2, 8, 2))
sketch6.addConstraint(Sketcher.Constraint("Vertical", 6, 2, 9, 2))
sketch6.addConstraint(Sketcher.Constraint("Vertical", 15, 2, 16, 2))
sketch6.addConstraint(Sketcher.Constraint("Vertical", 14, 2, 17, 2))
sketch6.addConstraint(Sketcher.Constraint("Equal", 11, 13))
sketch6.addConstraint(Sketcher.Constraint("Equal", 2, 4))
sketch6.addConstraint(Sketcher.Constraint("Equal", 6, 8))
sketch6.addConstraint(Sketcher.Constraint("DistanceX", 1, 1, 1, 2, 1.5))
sketch6.addConstraint(Sketcher.Constraint("DistanceY", -1, 1, 10, 2, 5.0))
sketch6.addConstraint(Sketcher.Constraint("DistanceY", 4, 2, 3, 2, 2.0))
sketch6.addConstraint(Sketcher.Constraint("DistanceY", 8, 2, 7, 2, 2.0))
sketch6.addConstraint(Sketcher.Constraint("DistanceX", 5, 2, 13, 2, 2.0))
sketch6.addConstraint(Sketcher.Constraint("DistanceY", 0, 2, 0, 1, 0.75))
sketch6.addConstraint(Sketcher.Constraint("DistanceX", 0, 2, -1, 1, 2.3))
pad6 = body.newObject("PartDesign::Pad", "Pad005")
pad6.Profile = sketch6
pad6.Length = 0.75

doc.recompute()
